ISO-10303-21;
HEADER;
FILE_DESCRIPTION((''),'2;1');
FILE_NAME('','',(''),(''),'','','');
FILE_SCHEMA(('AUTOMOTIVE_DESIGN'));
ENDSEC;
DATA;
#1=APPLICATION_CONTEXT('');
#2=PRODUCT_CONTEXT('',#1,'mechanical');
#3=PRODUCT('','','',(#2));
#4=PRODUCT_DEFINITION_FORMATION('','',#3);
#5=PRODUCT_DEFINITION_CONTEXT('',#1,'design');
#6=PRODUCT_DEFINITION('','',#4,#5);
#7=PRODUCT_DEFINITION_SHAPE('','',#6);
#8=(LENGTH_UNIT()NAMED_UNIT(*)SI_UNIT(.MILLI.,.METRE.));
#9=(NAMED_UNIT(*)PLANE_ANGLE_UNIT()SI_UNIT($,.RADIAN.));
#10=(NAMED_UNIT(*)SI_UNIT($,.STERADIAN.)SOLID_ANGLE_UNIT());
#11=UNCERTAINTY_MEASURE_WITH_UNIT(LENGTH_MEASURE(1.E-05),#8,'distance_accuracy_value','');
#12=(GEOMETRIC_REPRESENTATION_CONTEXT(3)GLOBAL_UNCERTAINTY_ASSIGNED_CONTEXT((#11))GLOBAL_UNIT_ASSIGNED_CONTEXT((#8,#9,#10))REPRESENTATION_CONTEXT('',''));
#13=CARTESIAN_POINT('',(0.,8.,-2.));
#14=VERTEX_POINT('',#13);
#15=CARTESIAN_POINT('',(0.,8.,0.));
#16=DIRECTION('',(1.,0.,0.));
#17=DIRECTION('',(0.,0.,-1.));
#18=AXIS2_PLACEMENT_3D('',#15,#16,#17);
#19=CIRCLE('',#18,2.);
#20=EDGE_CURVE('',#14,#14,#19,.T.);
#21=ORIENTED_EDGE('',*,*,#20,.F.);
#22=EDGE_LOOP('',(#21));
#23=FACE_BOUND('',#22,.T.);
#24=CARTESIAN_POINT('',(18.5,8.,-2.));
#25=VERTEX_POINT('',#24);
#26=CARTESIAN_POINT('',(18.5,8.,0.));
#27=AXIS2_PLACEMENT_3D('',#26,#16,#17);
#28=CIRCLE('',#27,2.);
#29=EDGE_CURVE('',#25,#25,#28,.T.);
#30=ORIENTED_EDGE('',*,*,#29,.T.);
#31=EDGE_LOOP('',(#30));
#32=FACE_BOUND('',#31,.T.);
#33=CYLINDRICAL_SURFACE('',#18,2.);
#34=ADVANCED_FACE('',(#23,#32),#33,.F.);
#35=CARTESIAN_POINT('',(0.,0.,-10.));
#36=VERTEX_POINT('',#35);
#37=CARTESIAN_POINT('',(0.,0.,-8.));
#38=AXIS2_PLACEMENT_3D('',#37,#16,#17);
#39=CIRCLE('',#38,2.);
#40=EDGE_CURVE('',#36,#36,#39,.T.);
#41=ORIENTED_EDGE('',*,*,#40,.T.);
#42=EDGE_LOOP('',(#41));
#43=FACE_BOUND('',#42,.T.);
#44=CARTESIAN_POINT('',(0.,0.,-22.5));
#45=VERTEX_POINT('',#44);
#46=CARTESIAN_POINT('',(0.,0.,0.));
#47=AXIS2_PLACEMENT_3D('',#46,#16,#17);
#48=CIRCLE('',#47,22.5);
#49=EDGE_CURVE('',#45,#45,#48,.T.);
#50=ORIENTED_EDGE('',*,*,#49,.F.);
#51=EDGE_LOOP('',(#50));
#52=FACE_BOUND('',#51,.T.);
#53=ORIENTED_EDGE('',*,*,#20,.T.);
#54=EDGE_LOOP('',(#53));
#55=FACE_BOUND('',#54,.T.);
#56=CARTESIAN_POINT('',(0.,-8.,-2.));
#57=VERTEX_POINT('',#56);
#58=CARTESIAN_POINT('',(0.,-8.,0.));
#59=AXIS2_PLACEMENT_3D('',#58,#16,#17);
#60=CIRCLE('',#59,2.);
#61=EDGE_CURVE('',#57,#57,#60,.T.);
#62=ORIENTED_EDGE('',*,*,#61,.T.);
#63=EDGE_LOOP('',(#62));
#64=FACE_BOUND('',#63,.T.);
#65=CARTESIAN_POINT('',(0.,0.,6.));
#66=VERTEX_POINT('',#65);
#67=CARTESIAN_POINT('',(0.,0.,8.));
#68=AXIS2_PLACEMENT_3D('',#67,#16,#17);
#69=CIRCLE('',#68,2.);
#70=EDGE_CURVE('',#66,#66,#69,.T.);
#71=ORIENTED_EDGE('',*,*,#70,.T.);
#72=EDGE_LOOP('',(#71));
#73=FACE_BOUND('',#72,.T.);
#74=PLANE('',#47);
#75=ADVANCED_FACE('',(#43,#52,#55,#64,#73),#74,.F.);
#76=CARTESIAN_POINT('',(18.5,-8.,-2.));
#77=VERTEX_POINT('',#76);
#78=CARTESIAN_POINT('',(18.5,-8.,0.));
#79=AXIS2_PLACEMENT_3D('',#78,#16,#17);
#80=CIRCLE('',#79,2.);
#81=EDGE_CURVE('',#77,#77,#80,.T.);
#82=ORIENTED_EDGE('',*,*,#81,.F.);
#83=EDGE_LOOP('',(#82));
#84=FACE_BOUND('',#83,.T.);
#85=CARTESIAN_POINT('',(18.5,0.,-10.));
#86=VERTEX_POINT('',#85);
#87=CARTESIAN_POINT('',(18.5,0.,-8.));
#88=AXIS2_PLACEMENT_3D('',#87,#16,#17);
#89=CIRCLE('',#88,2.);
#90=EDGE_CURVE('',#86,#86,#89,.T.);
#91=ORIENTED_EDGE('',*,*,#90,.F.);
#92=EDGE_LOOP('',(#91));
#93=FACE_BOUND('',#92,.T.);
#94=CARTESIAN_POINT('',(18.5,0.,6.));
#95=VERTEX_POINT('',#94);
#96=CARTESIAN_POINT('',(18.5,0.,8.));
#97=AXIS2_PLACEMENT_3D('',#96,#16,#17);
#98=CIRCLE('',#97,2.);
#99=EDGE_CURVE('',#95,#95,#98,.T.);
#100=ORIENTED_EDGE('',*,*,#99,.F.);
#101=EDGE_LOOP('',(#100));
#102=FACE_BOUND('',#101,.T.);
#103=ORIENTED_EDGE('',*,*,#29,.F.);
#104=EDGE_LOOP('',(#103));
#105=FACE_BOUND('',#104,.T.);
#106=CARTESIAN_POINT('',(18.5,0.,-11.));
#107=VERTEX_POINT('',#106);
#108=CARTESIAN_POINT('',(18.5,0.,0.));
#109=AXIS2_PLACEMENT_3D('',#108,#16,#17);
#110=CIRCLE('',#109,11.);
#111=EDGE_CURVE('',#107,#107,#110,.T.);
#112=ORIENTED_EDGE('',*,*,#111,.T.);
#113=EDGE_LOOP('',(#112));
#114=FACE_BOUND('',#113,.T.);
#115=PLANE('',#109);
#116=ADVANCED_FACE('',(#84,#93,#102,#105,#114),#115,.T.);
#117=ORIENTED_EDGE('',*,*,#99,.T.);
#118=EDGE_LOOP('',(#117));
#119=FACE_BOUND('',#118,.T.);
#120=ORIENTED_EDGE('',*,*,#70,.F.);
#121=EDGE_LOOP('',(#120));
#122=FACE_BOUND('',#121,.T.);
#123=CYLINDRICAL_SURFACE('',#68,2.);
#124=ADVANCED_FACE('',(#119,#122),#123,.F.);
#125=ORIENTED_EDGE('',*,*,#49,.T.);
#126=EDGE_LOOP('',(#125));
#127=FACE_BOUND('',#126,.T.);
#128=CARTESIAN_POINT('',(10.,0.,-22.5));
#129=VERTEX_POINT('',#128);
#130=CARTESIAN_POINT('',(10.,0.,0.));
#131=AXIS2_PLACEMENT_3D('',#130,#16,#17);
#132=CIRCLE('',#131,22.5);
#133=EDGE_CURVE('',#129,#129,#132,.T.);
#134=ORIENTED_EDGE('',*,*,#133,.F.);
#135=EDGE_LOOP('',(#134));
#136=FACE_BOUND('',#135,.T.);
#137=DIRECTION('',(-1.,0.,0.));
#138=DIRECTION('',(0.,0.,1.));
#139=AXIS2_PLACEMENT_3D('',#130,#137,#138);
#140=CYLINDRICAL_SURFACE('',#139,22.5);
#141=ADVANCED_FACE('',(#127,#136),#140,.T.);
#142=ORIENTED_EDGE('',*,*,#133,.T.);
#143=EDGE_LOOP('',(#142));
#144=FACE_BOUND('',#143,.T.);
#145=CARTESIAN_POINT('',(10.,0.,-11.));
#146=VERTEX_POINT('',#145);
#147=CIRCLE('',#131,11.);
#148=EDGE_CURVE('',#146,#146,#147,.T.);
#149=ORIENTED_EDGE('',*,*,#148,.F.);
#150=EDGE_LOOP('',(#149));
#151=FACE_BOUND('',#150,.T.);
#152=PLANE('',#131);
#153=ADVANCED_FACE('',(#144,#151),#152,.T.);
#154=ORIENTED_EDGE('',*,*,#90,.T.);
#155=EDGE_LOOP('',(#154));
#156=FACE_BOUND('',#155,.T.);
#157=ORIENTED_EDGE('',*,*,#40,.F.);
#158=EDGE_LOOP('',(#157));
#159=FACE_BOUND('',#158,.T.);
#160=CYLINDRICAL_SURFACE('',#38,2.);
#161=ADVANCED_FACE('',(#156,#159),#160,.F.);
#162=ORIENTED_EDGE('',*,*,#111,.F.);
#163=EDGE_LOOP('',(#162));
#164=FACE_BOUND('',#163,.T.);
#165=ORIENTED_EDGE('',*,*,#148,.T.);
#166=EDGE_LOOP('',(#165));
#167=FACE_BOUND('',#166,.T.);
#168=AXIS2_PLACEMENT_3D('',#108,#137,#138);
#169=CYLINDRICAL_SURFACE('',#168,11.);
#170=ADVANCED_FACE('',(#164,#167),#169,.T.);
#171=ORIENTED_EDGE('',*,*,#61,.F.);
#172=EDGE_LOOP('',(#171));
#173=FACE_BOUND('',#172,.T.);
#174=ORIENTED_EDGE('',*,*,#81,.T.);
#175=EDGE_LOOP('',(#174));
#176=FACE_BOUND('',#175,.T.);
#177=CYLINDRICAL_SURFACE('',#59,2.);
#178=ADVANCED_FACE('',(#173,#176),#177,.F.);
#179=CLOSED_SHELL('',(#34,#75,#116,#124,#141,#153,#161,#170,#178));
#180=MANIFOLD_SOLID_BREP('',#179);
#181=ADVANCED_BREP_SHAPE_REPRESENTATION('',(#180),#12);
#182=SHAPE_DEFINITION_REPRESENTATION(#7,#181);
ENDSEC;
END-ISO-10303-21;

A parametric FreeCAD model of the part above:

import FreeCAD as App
import Part
import Sketcher

V = App.Vector

doc = App.newDocument("Part")
params = doc.addObject("Spreadsheet::Sheet", "Params")
for row, (alias, value) in enumerate([
    ("sketch1_diameter", "45 mm"),
    ("pad1_length", "10 mm"),
    ("sketch2_diameter", "22 mm"),
    ("pad2_length", "8.5 mm"),
    ("sketch3_diameter", "4 mm"),
], start=1):
    params.set(f"A{row}", alias)
    params.set(f"B{row}", "=" + value)
    params.setAlias(f"B{row}", alias)

body = doc.addObject("PartDesign::Body", "Body")

sketch1 = doc.addObject("Sketcher::SketchObject", "Sketch")
body.addObject(sketch1)
sketch1.AttachmentSupport = (doc.YZ_Plane, [""])
sketch1.MapMode = "FlatFace"
sketch1.addGeometry(Part.Circle(V(0, 0, 0), V(0, 0, 1), 22), False)
sketch1.addConstraint(Sketcher.Constraint("Coincident", 0, 3, -1, 1))
sketch1.addConstraint(Sketcher.Constraint("Diameter", 0, 45.0))
sketch1.setExpression("Constraints[1]", "Params.sketch1_diameter")
pad1 = doc.addObject("PartDesign::Pad", "Pad")
body.addObject(pad1)
pad1.Profile = sketch1
pad1.setExpression("Length", "Params.pad1_length")

sketch2 = doc.addObject("Sketcher::SketchObject", "Sketch001")
body.addObject(sketch2)
sketch2.AttachmentSupport = (doc.YZ_Plane, [""])
sketch2.MapMode = "FlatFace"
sketch2.AttachmentOffset = App.Placement(V(0, 0, 10), App.Rotation())
sketch2.addGeometry(Part.Circle(V(0, 0, 0), V(0, 0, 1), 11), False)
sketch2.addConstraint(Sketcher.Constraint("Coincident", 0, 3, -1, 1))
sketch2.addConstraint(Sketcher.Constraint("Diameter", 0, 22.0))
sketch2.setExpression("Constraints[1]", "Params.sketch2_diameter")
pad2 = doc.addObject("PartDesign::Pad", "Pad001")
body.addObject(pad2)
pad2.Profile = sketch2
pad2.setExpression("Length", "Params.pad2_length")

sketch3 = doc.addObject("Sketcher::SketchObject", "Sketch002")
body.addObject(sketch3)
sketch3.AttachmentSupport = (doc.YZ_Plane, [""])
sketch3.MapMode = "FlatFace"
sketch3.AttachmentOffset = App.Placement(V(0, 0, 18.5), App.Rotation())
sketch3.addGeometry(Part.Circle(V(8, 0, 0), V(0, 0, 1), 2), False)
sketch3.addGeometry(Part.Circle(V(0, -8, 0), V(0, 0, 1), 2), False)
sketch3.addGeometry(Part.Circle(V(-8, 0, 0), V(0, 0, 1), 2), False)
sketch3.addGeometry(Part.Circle(V(0, 8, 0), V(0, 0, 1), 2), False)
sketch3.addConstraint(Sketcher.Constraint("Equal", 0, 1))
sketch3.addConstraint(Sketcher.Constraint("Equal", 1, 2))
sketch3.addConstraint(Sketcher.Constraint("Equal", 2, 3))
sketch3.addConstraint(Sketcher.Constraint("Symmetric", 0, 3, 2, 3, -1, 1))
sketch3.addConstraint(Sketcher.Constraint("Symmetric", 1, 3, 3, 3, -1, 1))
sketch3.addConstraint(Sketcher.Constraint("PointOnObject", 0, 3, -1))
sketch3.addConstraint(Sketcher.Constraint("PointOnObject", 1, 3, -2))
sketch3.addConstraint(Sketcher.Constraint("Diameter", 0, 4.0))
sketch3.addConstraint(Sketcher.Constraint("DistanceX", -1, 1, 0, 3, 8.0))
sketch3.addConstraint(Sketcher.Constraint("DistanceY", 1, 3, -1, 1, 8.0))
sketch3.setExpression("Constraints[7]", "Params.sketch3_diameter")
pocket1 = doc.addObject("PartDesign::Pocket", "Pocket")
body.addObject(pocket1)
pocket1.Profile = sketch3
pocket1.Type = "ThroughAll"

doc.recompute()
